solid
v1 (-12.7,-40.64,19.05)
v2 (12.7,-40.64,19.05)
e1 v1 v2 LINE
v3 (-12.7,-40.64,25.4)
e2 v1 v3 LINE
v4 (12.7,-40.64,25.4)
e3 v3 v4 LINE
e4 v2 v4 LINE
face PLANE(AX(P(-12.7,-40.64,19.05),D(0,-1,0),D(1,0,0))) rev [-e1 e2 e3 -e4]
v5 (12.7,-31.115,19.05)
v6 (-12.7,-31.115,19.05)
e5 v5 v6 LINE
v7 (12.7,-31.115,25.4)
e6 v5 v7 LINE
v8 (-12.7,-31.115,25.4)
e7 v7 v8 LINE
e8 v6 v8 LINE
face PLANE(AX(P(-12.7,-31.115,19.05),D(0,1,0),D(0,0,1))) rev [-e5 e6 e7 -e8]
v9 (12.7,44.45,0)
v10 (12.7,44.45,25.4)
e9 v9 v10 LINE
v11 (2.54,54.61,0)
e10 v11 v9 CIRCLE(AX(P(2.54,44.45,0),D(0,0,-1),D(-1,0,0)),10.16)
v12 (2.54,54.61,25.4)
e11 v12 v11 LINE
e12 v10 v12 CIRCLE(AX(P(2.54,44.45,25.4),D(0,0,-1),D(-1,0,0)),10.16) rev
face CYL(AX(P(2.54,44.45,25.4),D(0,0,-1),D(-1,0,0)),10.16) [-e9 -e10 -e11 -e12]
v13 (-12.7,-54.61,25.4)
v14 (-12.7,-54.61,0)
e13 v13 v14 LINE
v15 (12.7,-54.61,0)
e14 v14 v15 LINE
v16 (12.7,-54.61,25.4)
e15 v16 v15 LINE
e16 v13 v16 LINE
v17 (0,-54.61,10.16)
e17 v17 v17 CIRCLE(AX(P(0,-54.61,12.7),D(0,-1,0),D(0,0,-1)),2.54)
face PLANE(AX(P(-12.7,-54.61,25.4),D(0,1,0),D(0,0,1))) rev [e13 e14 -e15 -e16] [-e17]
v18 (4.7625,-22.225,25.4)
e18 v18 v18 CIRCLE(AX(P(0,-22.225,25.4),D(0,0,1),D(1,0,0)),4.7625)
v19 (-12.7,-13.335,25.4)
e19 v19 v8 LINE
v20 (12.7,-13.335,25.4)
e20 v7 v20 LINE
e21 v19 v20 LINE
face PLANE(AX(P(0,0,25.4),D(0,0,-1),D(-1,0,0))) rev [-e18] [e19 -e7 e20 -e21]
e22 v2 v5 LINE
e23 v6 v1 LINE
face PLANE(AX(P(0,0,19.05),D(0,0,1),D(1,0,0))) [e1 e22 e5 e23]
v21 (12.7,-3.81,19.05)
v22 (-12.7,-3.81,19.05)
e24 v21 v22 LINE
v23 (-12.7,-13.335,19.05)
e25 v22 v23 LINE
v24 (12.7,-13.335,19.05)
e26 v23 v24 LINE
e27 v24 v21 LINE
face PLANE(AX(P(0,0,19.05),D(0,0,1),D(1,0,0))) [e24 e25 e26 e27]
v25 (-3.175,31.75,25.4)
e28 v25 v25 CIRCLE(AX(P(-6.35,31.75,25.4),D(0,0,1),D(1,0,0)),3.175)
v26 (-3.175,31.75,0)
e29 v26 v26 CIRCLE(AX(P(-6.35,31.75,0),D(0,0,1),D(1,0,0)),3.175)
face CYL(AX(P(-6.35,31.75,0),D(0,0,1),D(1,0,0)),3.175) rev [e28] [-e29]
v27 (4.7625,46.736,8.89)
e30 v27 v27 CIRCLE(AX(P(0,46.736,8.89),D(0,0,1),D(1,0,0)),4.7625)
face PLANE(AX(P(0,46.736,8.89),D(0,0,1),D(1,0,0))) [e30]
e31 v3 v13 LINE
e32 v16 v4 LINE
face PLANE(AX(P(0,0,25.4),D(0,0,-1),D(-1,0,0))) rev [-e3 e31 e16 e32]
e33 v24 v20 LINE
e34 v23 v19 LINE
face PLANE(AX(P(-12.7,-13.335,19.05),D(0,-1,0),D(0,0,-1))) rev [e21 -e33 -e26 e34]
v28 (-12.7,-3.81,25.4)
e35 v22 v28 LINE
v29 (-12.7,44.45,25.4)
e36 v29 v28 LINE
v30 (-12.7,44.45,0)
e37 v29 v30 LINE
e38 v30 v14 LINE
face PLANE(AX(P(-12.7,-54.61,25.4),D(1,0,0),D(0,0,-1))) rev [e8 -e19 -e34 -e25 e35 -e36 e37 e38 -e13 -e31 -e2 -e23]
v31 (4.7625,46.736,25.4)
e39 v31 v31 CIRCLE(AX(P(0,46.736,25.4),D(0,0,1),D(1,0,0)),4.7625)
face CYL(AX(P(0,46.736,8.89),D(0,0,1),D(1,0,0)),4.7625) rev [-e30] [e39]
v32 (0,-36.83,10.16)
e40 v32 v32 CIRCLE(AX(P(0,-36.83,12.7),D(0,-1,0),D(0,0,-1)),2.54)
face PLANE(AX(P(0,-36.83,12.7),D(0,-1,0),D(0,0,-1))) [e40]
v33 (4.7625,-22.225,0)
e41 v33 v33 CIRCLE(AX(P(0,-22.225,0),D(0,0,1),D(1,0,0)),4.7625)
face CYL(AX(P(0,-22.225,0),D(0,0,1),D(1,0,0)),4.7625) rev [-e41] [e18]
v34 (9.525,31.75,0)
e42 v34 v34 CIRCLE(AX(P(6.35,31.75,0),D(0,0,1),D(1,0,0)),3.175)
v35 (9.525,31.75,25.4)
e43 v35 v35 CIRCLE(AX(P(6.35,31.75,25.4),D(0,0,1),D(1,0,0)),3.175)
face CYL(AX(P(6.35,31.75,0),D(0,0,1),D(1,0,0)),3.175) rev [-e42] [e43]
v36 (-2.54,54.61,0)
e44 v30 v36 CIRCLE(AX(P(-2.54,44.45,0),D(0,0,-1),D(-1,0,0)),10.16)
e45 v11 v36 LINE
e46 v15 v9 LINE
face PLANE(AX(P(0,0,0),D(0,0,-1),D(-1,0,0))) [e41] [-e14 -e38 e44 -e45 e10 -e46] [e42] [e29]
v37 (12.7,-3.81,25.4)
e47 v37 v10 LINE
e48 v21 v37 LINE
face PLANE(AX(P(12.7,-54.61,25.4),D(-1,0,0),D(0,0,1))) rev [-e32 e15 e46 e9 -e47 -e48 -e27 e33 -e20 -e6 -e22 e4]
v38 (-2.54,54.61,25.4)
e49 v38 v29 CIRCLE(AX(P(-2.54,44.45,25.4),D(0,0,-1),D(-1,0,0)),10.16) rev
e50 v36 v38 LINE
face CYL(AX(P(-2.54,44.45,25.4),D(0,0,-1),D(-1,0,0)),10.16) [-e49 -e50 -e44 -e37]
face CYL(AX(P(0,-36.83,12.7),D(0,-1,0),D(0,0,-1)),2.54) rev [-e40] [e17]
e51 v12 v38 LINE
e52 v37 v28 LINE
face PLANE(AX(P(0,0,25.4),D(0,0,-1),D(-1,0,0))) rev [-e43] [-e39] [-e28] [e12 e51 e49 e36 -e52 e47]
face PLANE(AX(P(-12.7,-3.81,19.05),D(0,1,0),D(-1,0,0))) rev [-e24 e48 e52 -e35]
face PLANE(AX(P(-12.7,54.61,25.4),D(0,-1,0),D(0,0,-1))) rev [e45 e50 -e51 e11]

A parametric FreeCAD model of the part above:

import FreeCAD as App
import Part
import Sketcher
Q = App.Units.Quantity


def edges_at(feature, points):
    """Names of the edges that pass closest to the given points."""
    edges = feature.Shape.Edges
    near = lambda p: min(range(len(edges)), key=lambda i: edges[i].distToShape(Part.Vertex(*p))[0])
    return sorted({f"Edge{near(p) + 1}" for p in points})

doc = App.newDocument("Part")
params = doc.addObject("Spreadsheet::Sheet", "Params")
for row, (alias, value) in enumerate([
    ("sketch1_width", "1 in"),
    ("sketch1_height", "4.3 in"),
    ("pad1_length", "1 in"),
    ("sketch2_diameter", "0.25 in"),
    ("sketch2_diameter2", "0.375 in"),
    ("pocket1_length", "1 in"),
    ("sketch3_width", "1 in"),
    ("sketch3_height", "0.375 in"),
    ("pocket2_length", "0.25 in"),
    ("sketch4_diameter", "0.375 in"),
    ("pocket3_length", "0.65 in"),
    ("sketch5_diameter", "0.2 in"),
    ("pocket4_length", "0.7 in"),
    ("fillet_radius", "0.4 in"),
], start=1):
    params.set(f"A{row}", alias)
    params.set(f"B{row}", "=" + value)
    params.setAlias(f"B{row}", alias)

body = doc.addObject("PartDesign::Body", "Body")

sketch1 = doc.addObject("Sketcher::SketchObject", "Sketch")
body.addObject(sketch1)
sketch1.AttachmentSupport = (doc.XY_Plane, [""])
sketch1.MapMode = "FlatFace"
sketch1.addGeometry(Part.LineSegment(App.Vector(-13, 55, 0), App.Vector(-13, -55, 0)), False)
sketch1.addGeometry(Part.LineSegment(App.Vector(-13, -55, 0), App.Vector(13, -55, 0)), False)
sketch1.addGeometry(Part.LineSegment(App.Vector(13, -55, 0), App.Vector(13, 55, 0)), False)
sketch1.addGeometry(Part.LineSegment(App.Vector(13, 55, 0), App.Vector(-13, 55, 0)), False)
sketch1.addConstraint(Sketcher.Constraint("Coincident", 0, 2, 1, 1))
sketch1.addConstraint(Sketcher.Constraint("Coincident", 1, 2, 2, 1))
sketch1.addConstraint(Sketcher.Constraint("Coincident", 2, 2, 3, 1))
sketch1.addConstraint(Sketcher.Constraint("Coincident", 3, 2, 0, 1))
sketch1.addConstraint(Sketcher.Constraint("Vertical", 0))
sketch1.addConstraint(Sketcher.Constraint("Horizontal", 1))
sketch1.addConstraint(Sketcher.Constraint("Vertical", 2))
sketch1.addConstraint(Sketcher.Constraint("Horizontal", 3))
sketch1.addConstraint(Sketcher.Constraint("Symmetric", 0, 2, 2, 2, -1, 1))
sketch1.addConstraint(Sketcher.Constraint("DistanceX", 1, 1, 1, 2, Q("1 in")))
sketch1.addConstraint(Sketcher.Constraint("DistanceY", 0, 2, 0, 1, Q("4.3 in")))
sketch1.setExpression("Constraints[9]", "Params.sketch1_width")
sketch1.setExpression("Constraints[10]", "Params.sketch1_height")
pad1 = doc.addObject("PartDesign::Pad", "Pad")
body.addObject(pad1)
pad1.Profile = sketch1
pad1.setExpression("Length", "Params.pad1_length")

sketch2 = doc.addObject("Sketcher::SketchObject", "Sketch001")
body.addObject(sketch2)
sketch2.AttachmentSupport = (doc.XY_Plane, [""])
sketch2.MapMode = "FlatFace"
sketch2.AttachmentOffset = App.Placement(App.Vector(0, 0, 1 * 25.4), App.Rotation())
sketch2.addGeometry(Part.Circle(App.Vector(0, -22.2, 0), App.Vector(0, 0, 1), 4.8), False)
sketch2.addGeometry(Part.Circle(App.Vector(6.3, 31.8, 0), App.Vector(0, 0, 1), 3.2), False)
sketch2.addGeometry(Part.Circle(App.Vector(-6.3, 31.8, 0), App.Vector(0, 0, 1), 3.2), False)
sketch2.addConstraint(Sketcher.Constraint("Equal", 1, 2))
sketch2.addConstraint(Sketcher.Constraint("Symmetric", 1, 3, 2, 3, -2))
sketch2.addConstraint(Sketcher.Constraint("PointOnObject", 0, 3, -2))
sketch2.addConstraint(Sketcher.Constraint("Diameter", 1, Q("0.25 in")))
sketch2.addConstraint(Sketcher.Constraint("Diameter", 0, Q("0.375 in")))
sketch2.addConstraint(Sketcher.Constraint("DistanceX", 2, 3, 1, 3, Q("0.5 in")))
sketch2.addConstraint(Sketcher.Constraint("DistanceY", -1, 1, 1, 3, Q("1.25 in")))
sketch2.addConstraint(Sketcher.Constraint("DistanceY", 0, 3, -1, 1, Q("0.875 in")))
sketch2.setExpression("Constraints[3]", "Params.sketch2_diameter")
sketch2.setExpression("Constraints[4]", "Params.sketch2_diameter2")
pocket1 = doc.addObject("PartDesign::Pocket", "Pocket")
body.addObject(pocket1)
pocket1.Profile = sketch2
pocket1.setExpression("Length", "Params.pocket1_length")

sketch3 = doc.addObject("Sketcher::SketchObject", "Sketch002")
body.addObject(sketch3)
sketch3.AttachmentSupport = (doc.XY_Plane, [""])
sketch3.MapMode = "FlatFace"
sketch3.AttachmentOffset = App.Placement(App.Vector(0, 0, 1 * 25.4), App.Rotation())
sketch3.addGeometry(Part.LineSegment(App.Vector(-13, -4, 0), App.Vector(-13, -13, 0)), False)
sketch3.addGeometry(Part.LineSegment(App.Vector(-13, -13, 0), App.Vector(13, -13, 0)), False)
sketch3.addGeometry(Part.LineSegment(App.Vector(13, -13, 0), App.Vector(13, -4, 0)), False)
sketch3.addGeometry(Part.LineSegment(App.Vector(13, -4, 0), App.Vector(-13, -4, 0)), False)
sketch3.addGeometry(Part.LineSegment(App.Vector(-13, -31, 0), App.Vector(-13, -41, 0)), False)
sketch3.addGeometry(Part.LineSegment(App.Vector(-13, -41, 0), App.Vector(13, -41, 0)), False)
sketch3.addGeometry(Part.LineSegment(App.Vector(13, -41, 0), App.Vector(13, -31, 0)), False)
sketch3.addGeometry(Part.LineSegment(App.Vector(13, -31, 0), App.Vector(-13, -31, 0)), False)
sketch3.addConstraint(Sketcher.Constraint("Coincident", 0, 2, 1, 1))
sketch3.addConstraint(Sketcher.Constraint("Coincident", 1, 2, 2, 1))
sketch3.addConstraint(Sketcher.Constraint("Coincident", 2, 2, 3, 1))
sketch3.addConstraint(Sketcher.Constraint("Coincident", 3, 2, 0, 1))
sketch3.addConstraint(Sketcher.Constraint("Coincident", 4, 2, 5, 1))
sketch3.addConstraint(Sketcher.Constraint("Coincident", 5, 2, 6, 1))
sketch3.addConstraint(Sketcher.Constraint("Coincident", 6, 2, 7, 1))
sketch3.addConstraint(Sketcher.Constraint("Coincident", 7, 2, 4, 1))
sketch3.addConstraint(Sketcher.Constraint("Vertical", 0))
sketch3.addConstraint(Sketcher.Constraint("Horizontal", 1))
sketch3.addConstraint(Sketcher.Constraint("Vertical", 2))
sketch3.addConstraint(Sketcher.Constraint("Horizontal", 3))
sketch3.addConstraint(Sketcher.Constraint("Vertical", 4))
sketch3.addConstraint(Sketcher.Constraint("Horizontal", 5))
sketch3.addConstraint(Sketcher.Constraint("Vertical", 6))
sketch3.addConstraint(Sketcher.Constraint("Horizontal", 7))
sketch3.addConstraint(Sketcher.Constraint("Vertical", 3, 2, 4, 2))
sketch3.addConstraint(Sketcher.Constraint("Vertical", 2, 2, 5, 2))
sketch3.addConstraint(Sketcher.Constraint("Equal", 2, 4))
sketch3.addConstraint(Sketcher.Constraint("DistanceX", 1, 1, 1, 2, Q("1 in")))
sketch3.addConstraint(Sketcher.Constraint("DistanceX", 0, 2, -1, 1, Q("0.5 in")))
sketch3.addConstraint(Sketcher.Constraint("DistanceY", 4, 2, -1, 1, Q("1.6 in")))
sketch3.addConstraint(Sketcher.Constraint("DistanceY", 6, 2, 1, 2, Q("0.7 in")))
sketch3.addConstraint(Sketcher.Constraint("DistanceY", 0, 2, 0, 1, Q("0.375 in")))
sketch3.setExpression("Constraints[19]", "Params.sketch3_width")
sketch3.setExpression("Constraints[23]", "Params.sketch3_height")
pocket2 = doc.addObject("PartDesign::Pocket", "Pocket001")
body.addObject(pocket2)
pocket2.Profile = sketch3
pocket2.setExpression("Length", "Params.pocket2_length")

sketch4 = doc.addObject("Sketcher::SketchObject", "Sketch003")
body.addObject(sketch4)
sketch4.AttachmentSupport = (doc.XY_Plane, [""])
sketch4.MapMode = "FlatFace"
sketch4.AttachmentOffset = App.Placement(App.Vector(0, 0, 1 * 25.4), App.Rotation())
sketch4.addGeometry(Part.Circle(App.Vector(0, 46.7, 0), App.Vector(0, 0, 1), 4.8), False)
sketch4.addConstraint(Sketcher.Constraint("PointOnObject", 0, 3, -2))
sketch4.addConstraint(Sketcher.Constraint("Diameter", 0, Q("0.375 in")))
sketch4.addConstraint(Sketcher.Constraint("DistanceY", -1, 1, 0, 3, Q("1.84 in")))
sketch4.setExpression("Constraints[1]", "Params.sketch4_diameter")
pocket3 = doc.addObject("PartDesign::Pocket", "Pocket002")
body.addObject(pocket3)
pocket3.Profile = sketch4
pocket3.setExpression("Length", "Params.pocket3_length")

sketch5 = doc.addObject("Sketcher::SketchObject", "Sketch004")
body.addObject(sketch5)
sketch5.AttachmentSupport = (doc.XZ_Plane, [""])
sketch5.MapMode = "FlatFace"
sketch5.AttachmentOffset = App.Placement(App.Vector(0, 0, 2.15 * 25.4), App.Rotation())
sketch5.addGeometry(Part.Circle(App.Vector(0, 12.7, 0), App.Vector(0, 0, 1), 2.5), False)
sketch5.addConstraint(Sketcher.Constraint("PointOnObject", 0, 3, -2))
sketch5.addConstraint(Sketcher.Constraint("Diameter", 0, Q("0.2 in")))
sketch5.addConstraint(Sketcher.Constraint("DistanceY", -1, 1, 0, 3, Q("0.5 in")))
sketch5.setExpression("Constraints[1]", "Params.sketch5_diameter")
pocket4 = doc.addObject("PartDesign::Pocket", "Pocket003")
body.addObject(pocket4)
pocket4.Profile = sketch5
pocket4.setExpression("Length", "Params.pocket4_length")
doc.recompute()

fillet = doc.addObject("PartDesign::Fillet", "Fillet")
body.addObject(fillet)
fillet.Base = (pocket4, edges_at(pocket4, [(-12.7, 54.61, 12.7), (12.7, 54.61, 12.7)]))
fillet.setExpression("Radius", "Params.fillet_radius")

doc.recompute()
